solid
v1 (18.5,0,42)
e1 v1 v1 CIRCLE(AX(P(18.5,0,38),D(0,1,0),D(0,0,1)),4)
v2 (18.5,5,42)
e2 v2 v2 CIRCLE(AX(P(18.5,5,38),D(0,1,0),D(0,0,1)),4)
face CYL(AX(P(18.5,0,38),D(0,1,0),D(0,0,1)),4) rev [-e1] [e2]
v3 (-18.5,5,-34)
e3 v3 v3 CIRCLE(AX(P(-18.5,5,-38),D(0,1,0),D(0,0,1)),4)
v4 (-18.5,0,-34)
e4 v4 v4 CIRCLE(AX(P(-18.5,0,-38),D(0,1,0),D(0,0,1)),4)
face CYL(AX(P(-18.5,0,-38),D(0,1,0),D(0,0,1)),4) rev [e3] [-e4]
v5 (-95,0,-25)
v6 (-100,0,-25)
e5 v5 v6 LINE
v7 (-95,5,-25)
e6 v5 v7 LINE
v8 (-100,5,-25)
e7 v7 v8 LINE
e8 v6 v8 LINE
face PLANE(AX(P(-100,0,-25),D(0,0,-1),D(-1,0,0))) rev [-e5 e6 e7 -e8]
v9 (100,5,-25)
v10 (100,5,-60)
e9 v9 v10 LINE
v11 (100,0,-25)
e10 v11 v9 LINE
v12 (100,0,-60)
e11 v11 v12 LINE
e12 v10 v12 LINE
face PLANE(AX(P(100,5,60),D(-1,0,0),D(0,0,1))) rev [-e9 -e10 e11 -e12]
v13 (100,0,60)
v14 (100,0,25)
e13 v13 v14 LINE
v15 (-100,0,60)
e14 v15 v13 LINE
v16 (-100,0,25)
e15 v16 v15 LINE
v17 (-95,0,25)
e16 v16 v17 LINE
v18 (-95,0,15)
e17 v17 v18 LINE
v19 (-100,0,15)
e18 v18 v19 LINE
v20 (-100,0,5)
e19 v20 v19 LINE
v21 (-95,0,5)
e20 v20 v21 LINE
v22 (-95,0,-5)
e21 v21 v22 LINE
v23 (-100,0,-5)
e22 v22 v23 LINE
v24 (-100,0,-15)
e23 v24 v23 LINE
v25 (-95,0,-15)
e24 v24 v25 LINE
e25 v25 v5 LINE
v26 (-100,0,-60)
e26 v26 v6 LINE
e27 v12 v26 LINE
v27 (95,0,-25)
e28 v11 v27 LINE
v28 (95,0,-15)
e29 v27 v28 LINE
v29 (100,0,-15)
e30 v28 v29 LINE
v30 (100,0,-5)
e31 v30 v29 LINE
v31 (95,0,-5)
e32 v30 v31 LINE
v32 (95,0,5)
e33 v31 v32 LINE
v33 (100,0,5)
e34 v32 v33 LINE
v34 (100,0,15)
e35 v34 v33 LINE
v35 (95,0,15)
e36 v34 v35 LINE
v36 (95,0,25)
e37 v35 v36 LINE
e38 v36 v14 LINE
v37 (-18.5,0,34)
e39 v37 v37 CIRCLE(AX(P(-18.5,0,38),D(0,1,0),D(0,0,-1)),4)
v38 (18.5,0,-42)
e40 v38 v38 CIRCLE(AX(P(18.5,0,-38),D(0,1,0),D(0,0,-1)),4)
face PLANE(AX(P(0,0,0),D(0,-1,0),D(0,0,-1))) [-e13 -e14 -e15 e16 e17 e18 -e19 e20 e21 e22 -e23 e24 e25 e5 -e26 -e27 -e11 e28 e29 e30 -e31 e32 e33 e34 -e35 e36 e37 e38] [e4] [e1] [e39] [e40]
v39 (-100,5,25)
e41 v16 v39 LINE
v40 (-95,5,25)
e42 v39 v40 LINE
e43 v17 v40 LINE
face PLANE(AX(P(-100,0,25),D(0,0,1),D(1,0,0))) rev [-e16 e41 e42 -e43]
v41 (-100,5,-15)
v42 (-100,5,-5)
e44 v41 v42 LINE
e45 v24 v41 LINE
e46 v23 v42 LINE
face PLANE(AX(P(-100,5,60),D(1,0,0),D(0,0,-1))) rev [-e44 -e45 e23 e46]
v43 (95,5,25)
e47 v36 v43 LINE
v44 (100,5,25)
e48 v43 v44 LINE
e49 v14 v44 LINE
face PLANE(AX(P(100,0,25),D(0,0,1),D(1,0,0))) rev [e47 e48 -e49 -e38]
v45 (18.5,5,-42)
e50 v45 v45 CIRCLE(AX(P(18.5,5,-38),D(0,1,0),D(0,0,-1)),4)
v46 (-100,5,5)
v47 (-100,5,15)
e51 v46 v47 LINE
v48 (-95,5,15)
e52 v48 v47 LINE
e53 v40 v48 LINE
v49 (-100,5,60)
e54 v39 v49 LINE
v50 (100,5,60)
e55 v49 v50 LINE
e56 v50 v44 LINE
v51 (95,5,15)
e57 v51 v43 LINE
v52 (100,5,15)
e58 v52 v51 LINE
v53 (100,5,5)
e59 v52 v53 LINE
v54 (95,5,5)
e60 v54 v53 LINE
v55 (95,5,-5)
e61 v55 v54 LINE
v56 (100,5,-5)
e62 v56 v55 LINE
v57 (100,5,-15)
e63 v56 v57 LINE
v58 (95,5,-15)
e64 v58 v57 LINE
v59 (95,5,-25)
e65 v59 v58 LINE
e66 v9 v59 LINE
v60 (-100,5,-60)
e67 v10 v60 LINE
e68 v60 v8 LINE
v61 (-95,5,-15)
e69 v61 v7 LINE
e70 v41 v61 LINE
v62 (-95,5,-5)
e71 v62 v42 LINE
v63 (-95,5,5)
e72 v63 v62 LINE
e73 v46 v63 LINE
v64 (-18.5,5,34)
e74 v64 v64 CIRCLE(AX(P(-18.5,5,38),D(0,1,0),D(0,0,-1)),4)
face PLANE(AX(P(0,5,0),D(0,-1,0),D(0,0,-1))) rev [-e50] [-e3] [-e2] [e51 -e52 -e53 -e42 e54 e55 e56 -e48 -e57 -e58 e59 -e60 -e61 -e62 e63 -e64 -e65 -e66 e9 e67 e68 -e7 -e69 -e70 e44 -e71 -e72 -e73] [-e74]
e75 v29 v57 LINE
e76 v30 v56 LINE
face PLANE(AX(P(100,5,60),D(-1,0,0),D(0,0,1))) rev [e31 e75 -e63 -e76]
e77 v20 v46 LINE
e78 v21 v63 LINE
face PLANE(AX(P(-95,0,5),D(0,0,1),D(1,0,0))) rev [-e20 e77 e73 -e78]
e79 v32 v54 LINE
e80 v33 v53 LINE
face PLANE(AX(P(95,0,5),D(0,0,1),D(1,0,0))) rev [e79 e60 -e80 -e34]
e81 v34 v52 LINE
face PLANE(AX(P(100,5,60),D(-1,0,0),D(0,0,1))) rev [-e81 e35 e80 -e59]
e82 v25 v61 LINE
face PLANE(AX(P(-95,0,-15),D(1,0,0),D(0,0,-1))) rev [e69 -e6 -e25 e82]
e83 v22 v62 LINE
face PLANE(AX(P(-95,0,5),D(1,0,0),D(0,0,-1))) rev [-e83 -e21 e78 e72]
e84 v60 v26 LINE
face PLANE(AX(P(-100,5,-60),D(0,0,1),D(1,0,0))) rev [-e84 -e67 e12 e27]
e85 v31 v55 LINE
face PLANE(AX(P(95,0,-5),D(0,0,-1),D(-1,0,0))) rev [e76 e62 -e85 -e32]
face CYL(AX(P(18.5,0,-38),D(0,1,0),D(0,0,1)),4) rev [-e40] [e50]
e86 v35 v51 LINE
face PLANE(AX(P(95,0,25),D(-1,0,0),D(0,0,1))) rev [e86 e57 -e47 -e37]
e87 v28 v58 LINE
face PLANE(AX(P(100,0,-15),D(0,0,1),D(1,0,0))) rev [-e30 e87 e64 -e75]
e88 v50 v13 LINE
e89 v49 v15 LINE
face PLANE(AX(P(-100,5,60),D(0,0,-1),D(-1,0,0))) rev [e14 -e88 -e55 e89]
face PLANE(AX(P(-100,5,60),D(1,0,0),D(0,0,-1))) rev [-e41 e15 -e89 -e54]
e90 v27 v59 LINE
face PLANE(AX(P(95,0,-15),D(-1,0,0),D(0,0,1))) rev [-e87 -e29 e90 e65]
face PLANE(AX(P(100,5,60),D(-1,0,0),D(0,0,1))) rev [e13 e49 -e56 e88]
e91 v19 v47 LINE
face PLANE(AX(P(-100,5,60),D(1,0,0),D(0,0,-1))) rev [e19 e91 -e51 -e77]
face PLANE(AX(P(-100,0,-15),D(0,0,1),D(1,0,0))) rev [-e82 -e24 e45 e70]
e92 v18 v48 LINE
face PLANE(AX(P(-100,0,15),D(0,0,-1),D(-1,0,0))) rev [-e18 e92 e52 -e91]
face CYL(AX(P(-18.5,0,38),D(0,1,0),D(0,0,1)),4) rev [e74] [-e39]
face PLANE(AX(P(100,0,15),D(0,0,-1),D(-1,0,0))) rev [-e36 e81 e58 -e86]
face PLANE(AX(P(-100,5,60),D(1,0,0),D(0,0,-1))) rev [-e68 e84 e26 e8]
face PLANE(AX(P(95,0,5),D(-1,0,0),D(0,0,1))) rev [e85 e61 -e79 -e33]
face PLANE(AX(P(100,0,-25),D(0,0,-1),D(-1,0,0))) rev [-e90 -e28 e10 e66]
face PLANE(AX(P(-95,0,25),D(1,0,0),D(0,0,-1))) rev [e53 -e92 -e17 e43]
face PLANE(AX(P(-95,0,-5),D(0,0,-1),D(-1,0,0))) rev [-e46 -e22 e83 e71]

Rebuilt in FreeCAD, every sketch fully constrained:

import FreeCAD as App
import Part
import Sketcher
from FreeCAD import Vector
Q = App.Units.Quantity


def add_polygon(sketch, points):
    """Adds a closed chain of lines whose ends are joined by coincident constraints."""
    first, n = sketch.GeometryCount, len(points)
    for a, b in zip(points, points[1:] + points[:1]):
        sketch.addGeometry(Part.LineSegment(App.Vector(*a, 0), App.Vector(*b, 0)), False)
    for i in range(n):
        sketch.addConstraint(Sketcher.Constraint("Coincident", first + i, 2, first + (i + 1) % n, 1))

doc = App.newDocument("Part")
params = doc.addObject("Spreadsheet::Sheet", "Params")
for row, (alias, value) in enumerate([
    ("sketch1_width", "200 mm"),
    ("sketch1_height", "120 mm"),
    ("pad1_length", "5 mm"),
    ("sketch2_width", "5 mm"),
    ("sketch2_height", "10 mm"),
    ("pocket1_length", "5 mm"),
    ("sketch3_diameter", "8 mm"),
], start=1):
    params.set(f"A{row}", alias)
    params.set(f"B{row}", "=" + value)
    params.setAlias(f"B{row}", alias)

body = doc.addObject("PartDesign::Body", "Body")

# Sketch on XZ plane
sketch1 = body.newObject("Sketcher::SketchObject", "Sketch")
sketch1.AttachmentSupport = (doc.getObject("XZ_Plane"), [""])
sketch1.MapMode = "FlatFace"
add_polygon(sketch1, [(-100, -60), (-100, 60), (100, 60), (100, -60)])  # lines 0-3
sketch1.addConstraint([
    Sketcher.Constraint("Vertical", 0),
    Sketcher.Constraint("Horizontal", 1),
    Sketcher.Constraint("Vertical", 2),
    Sketcher.Constraint("Horizontal", 3),
    Sketcher.Constraint("Symmetric", 0, 2, 2, 2, -1, 1),
    Sketcher.Constraint("DistanceX", 1, 1, 1, 2, Q("200 mm")),
    Sketcher.Constraint("DistanceY", 0, 1, 0, 2, Q("120 mm")),
])
sketch1.setExpression("Constraints[9]", "Params.sketch1_width")
sketch1.setExpression("Constraints[10]", "Params.sketch1_height")
pad1 = body.newObject("PartDesign::Pad", "Pad")
pad1.Profile = sketch1
pad1.setExpression("Length", "Params.pad1_length")
pad1.Reversed = True

# Sketch on XZ plane
sketch2 = body.newObject("Sketcher::SketchObject", "Sketch001")
sketch2.AttachmentSupport = (doc.getObject("XZ_Plane"), [""])
sketch2.MapMode = "FlatFace"
sketch2.AttachmentOffset = App.Placement(Vector(0, 0, -5), App.Rotation())
add_polygon(sketch2, [(95, -5), (95, 5), (100, 5), (100, -5)])  # lines 0-3
add_polygon(sketch2, [(-100, -5), (-100, 5), (-95, 5), (-95, -5)])  # lines 4-7
add_polygon(sketch2, [(-100, 15), (-100, 25), (-95, 25), (-95, 15)])  # lines 8-11
add_polygon(sketch2, [(-100, -25), (-100, -15), (-95, -15), (-95, -25)])  # lines 12-15
add_polygon(sketch2, [(95, 15), (95, 25), (100, 25), (100, 15)])  # lines 16-19
add_polygon(sketch2, [(95, -25), (95, -15), (100, -15), (100, -25)])  # lines 20-23
sketch2.addConstraint([
    Sketcher.Constraint("Vertical", 0),
    Sketcher.Constraint("Horizontal", 1),
    Sketcher.Constraint("Vertical", 2),
    Sketcher.Constraint("Horizontal", 3),
    Sketcher.Constraint("Vertical", 4),
    Sketcher.Constraint("Horizontal", 5),
    Sketcher.Constraint("Vertical", 6),
    Sketcher.Constraint("Horizontal", 7),
    Sketcher.Constraint("Vertical", 8),
    Sketcher.Constraint("Horizontal", 9),
    Sketcher.Constraint("Vertical", 10),
    Sketcher.Constraint("Horizontal", 11),
    Sketcher.Constraint("Vertical", 12),
    Sketcher.Constraint("Horizontal", 13),
    Sketcher.Constraint("Vertical", 14),
    Sketcher.Constraint("Horizontal", 15),
    Sketcher.Constraint("Vertical", 16),
    Sketcher.Constraint("Horizontal", 17),
    Sketcher.Constraint("Vertical", 18),
    Sketcher.Constraint("Horizontal", 19),
    Sketcher.Constraint("Vertical", 20),
    Sketcher.Constraint("Horizontal", 21),
    Sketcher.Constraint("Vertical", 22),
    Sketcher.Constraint("Horizontal", 23),
    Sketcher.Constraint("Symmetric", 2, 2, 4, 2, -1, 1),
    Sketcher.Constraint("Symmetric", 0, 2, 6, 2, -1, 1),
    Sketcher.Constraint("Symmetric", 14, 2, 16, 2, -1, 1),
    Sketcher.Constraint("Symmetric", 12, 2, 18, 2, -1, 1),
    Sketcher.Constraint("Symmetric", 10, 2, 20, 2, -1, 1),
    Sketcher.Constraint("Symmetric", 8, 2, 22, 2, -1, 1),
    Sketcher.Constraint("Symmetric", 9, 2, 16, 2, -2),
    Sketcher.Constraint("Symmetric", 11, 2, 18, 2, -2),
    Sketcher.Constraint("Horizontal", 1, 2, 4, 2),
    Sketcher.Constraint("Vertical", 7, 2, 8, 2),
    Sketcher.Constraint("Vertical", 6, 2, 9, 2),
    Sketcher.Constraint("Equal", 6, 8),
    Sketcher.Constraint("DistanceX", 1, 1, 1, 2, Q("5 mm")),
    Sketcher.Constraint("DistanceY", 0, 1, 0, 2, Q("10 mm")),
    Sketcher.Constraint("DistanceX", -1, 1, 0, 2, Q("95 mm")),
    Sketcher.Constraint("DistanceY", -1, 1, 8, 2, Q("25 mm")),
])
sketch2.setExpression("Constraints[60]", "Params.sketch2_width")
sketch2.setExpression("Constraints[61]", "Params.sketch2_height")
pocket1 = body.newObject("PartDesign::Pocket", "Pocket")
pocket1.Profile = sketch2
pocket1.setExpression("Length", "Params.pocket1_length")
pocket1.Reversed = True

# Sketch on XZ plane
sketch3 = body.newObject("Sketcher::SketchObject", "Sketch002")
sketch3.AttachmentSupport = (doc.getObject("XZ_Plane"), [""])
sketch3.MapMode = "FlatFace"
sketch3.AttachmentOffset = App.Placement(Vector(0, 0, -5), App.Rotation())
sketch3.addGeometry([
    Part.Circle(Vector(-18.5, -38, 0), Vector(0, 0, 1), 4),
    Part.Circle(Vector(18.5, -38, 0), Vector(0, 0, 1), 4),
    Part.Circle(Vector(18.5, 38, 0), Vector(0, 0, 1), 4),
    Part.Circle(Vector(-18.5, 38, 0), Vector(0, 0, 1), 4),
], False)
sketch3.addConstraint([
    Sketcher.Constraint("Equal", 0, 1),
    Sketcher.Constraint("Equal", 1, 2),
    Sketcher.Constraint("Equal", 2, 3),
    Sketcher.Constraint("Symmetric", 0, 3, 2, 3, -1, 1),
    Sketcher.Constraint("Symmetric", 1, 3, 3, 3, -1, 1),
    Sketcher.Constraint("Symmetric", 0, 3, 1, 3, -2),
    Sketcher.Constraint("Diameter", 0, Q("8 mm")),
    Sketcher.Constraint("DistanceY", 0, 3, -1, 1, Q("38 mm")),
    Sketcher.Constraint("DistanceX", 0, 3, 1, 3, Q("37 mm")),
])
sketch3.setExpression("Constraints[6]", "Params.sketch3_diameter")
pocket2 = body.newObject("PartDesign::Pocket", "Pocket001")
pocket2.Profile = sketch3
pocket2.Type = "ThroughAll"
pocket2.Reversed = True

doc.recompute()
